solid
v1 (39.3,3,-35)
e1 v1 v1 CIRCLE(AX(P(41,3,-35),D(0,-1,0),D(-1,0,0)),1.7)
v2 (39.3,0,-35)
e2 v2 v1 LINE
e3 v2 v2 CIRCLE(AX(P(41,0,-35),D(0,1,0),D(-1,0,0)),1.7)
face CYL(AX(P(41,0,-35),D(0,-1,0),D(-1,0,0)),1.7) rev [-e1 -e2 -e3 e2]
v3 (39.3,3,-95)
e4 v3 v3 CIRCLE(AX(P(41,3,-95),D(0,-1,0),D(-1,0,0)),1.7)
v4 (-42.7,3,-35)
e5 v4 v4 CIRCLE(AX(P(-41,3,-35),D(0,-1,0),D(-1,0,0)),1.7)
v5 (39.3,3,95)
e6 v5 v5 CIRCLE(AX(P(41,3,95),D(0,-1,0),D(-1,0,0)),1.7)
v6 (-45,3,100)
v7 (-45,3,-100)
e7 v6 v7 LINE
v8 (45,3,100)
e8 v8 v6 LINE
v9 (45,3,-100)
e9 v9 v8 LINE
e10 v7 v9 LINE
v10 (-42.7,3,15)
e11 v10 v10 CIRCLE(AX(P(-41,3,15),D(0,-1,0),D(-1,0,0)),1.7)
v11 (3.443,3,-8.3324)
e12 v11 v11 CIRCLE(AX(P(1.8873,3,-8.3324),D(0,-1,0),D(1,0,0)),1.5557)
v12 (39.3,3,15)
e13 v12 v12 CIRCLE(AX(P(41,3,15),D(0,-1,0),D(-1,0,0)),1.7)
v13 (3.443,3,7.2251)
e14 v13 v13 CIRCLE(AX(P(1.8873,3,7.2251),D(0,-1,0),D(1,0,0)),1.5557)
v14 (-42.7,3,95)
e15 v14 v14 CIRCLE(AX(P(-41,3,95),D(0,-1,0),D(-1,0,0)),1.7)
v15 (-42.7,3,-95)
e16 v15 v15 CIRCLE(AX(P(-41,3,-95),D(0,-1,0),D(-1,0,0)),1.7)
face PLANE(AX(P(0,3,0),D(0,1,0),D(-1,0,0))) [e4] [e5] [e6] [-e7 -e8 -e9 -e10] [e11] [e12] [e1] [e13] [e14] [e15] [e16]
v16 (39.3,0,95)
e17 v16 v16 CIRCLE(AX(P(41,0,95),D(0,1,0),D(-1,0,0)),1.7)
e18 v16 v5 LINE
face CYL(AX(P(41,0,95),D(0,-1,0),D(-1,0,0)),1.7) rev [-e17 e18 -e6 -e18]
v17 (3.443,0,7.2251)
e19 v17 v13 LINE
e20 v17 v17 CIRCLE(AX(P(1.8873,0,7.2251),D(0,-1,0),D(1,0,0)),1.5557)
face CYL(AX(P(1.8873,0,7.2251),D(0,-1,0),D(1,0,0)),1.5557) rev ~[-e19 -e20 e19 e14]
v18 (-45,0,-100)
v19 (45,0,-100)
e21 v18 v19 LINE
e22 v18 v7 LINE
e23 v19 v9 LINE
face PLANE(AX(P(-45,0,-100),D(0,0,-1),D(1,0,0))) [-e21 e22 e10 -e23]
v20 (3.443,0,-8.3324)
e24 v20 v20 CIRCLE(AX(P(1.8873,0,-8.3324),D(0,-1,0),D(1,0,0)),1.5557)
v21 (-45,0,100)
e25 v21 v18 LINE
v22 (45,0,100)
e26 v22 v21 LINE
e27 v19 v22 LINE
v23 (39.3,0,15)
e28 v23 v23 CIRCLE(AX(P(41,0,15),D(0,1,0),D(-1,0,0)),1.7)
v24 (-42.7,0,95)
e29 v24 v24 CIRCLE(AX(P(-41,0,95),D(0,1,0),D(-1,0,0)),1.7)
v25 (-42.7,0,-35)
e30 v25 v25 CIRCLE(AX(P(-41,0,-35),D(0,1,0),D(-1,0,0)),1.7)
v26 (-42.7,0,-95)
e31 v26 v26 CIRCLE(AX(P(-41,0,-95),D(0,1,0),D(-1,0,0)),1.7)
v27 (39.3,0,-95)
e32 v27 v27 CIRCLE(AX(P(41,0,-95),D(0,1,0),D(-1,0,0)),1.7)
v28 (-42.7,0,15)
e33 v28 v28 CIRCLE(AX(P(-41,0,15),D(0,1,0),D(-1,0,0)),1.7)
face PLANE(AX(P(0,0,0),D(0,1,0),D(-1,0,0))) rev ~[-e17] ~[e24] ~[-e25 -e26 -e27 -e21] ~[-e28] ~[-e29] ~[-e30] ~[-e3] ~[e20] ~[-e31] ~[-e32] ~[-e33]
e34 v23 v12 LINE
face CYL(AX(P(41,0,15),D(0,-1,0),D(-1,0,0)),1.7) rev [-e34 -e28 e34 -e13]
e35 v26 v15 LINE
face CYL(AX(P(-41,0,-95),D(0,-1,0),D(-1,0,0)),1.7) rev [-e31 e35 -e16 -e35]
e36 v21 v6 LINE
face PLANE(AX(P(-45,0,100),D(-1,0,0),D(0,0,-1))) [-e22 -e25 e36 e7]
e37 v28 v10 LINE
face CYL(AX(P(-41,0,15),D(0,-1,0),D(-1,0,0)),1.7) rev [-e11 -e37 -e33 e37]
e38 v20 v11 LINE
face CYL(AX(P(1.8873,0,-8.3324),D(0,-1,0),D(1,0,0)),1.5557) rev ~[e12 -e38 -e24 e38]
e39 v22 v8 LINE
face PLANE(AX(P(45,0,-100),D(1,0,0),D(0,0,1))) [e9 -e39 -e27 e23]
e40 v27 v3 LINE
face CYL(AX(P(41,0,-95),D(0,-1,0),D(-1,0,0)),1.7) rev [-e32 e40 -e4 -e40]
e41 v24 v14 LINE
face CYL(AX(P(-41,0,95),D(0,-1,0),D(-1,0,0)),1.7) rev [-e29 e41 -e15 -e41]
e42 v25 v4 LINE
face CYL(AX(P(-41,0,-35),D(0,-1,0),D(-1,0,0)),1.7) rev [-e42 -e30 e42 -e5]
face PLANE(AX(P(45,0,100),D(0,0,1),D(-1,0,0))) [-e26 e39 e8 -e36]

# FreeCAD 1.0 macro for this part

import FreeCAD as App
import Part
import Sketcher
Q = App.Units.Quantity


def add_polygon(sketch, points):
    """Adds a closed chain of lines whose ends are joined by coincident constraints."""
    first, n = sketch.GeometryCount, len(points)
    for a, b in zip(points, points[1:] + points[:1]):
        sketch.addGeometry(Part.LineSegment(App.Vector(*a, 0), App.Vector(*b, 0)), False)
    for i in range(n):
        sketch.addConstraint(Sketcher.Constraint("Coincident", first + i, 2, first + (i + 1) % n, 1))

doc = App.newDocument("Part")
params = doc.addObject("Spreadsheet::Sheet", "Params")
for row, (alias, value) in enumerate([
    ("pad1_length", "3 mm"),
    ("sketch2_diameter", "3.4 mm"),
    ("pocket1_length", "10 mm"),
    ("pocket2_length", "10 mm"),
], start=1):
    params.set(f"A{row}", alias)
    params.set(f"B{row}", "=" + value)
    params.setAlias(f"B{row}", alias)

body = doc.addObject("PartDesign::Body", "Body")

sketch1 = body.newObject("Sketcher::SketchObject", "Sketch")
sketch1.AttachmentSupport = (doc.getObject("XZ_Plane"), [""])
sketch1.MapMode = "FlatFace"
add_polygon(sketch1, [(-45, -100), (-45, 100), (45, 100), (45, -100)])
sketch1.addConstraint(Sketcher.Constraint("Vertical", 0))
sketch1.addConstraint(Sketcher.Constraint("Horizontal", 1))
sketch1.addConstraint(Sketcher.Constraint("Vertical", 2))
sketch1.addConstraint(Sketcher.Constraint("Horizontal", 3))
sketch1.addConstraint(Sketcher.Constraint("Symmetric", 0, 2, 2, 2, -1, 1))
sketch1.addConstraint(Sketcher.Constraint("DistanceX", 0, 2, -1, 1, Q("45 mm")))
sketch1.addConstraint(Sketcher.Constraint("DistanceY", -1, 1, 0, 2, Q("100 mm")))
pad1 = body.newObject("PartDesign::Pad", "Pad")
pad1.Profile = sketch1
pad1.setExpression("Length", "Params.pad1_length")
pad1.Reversed = True

sketch2 = body.newObject("Sketcher::SketchObject", "Sketch001")
sketch2.AttachmentSupport = (doc.getObject("XZ_Plane"), [""])
sketch2.MapMode = "FlatFace"
sketch2.addGeometry(Part.Circle(App.Vector(-41, 95, 0), App.Vector(0, 0, 1), 1.7), False)
sketch2.addGeometry(Part.Circle(App.Vector(41, 95, 0), App.Vector(0, 0, 1), 1.7), False)
sketch2.addGeometry(Part.Circle(App.Vector(41, -95, 0), App.Vector(0, 0, 1), 1.7), False)
sketch2.addGeometry(Part.Circle(App.Vector(-41, -95, 0), App.Vector(0, 0, 1), 1.7), False)
sketch2.addGeometry(Part.Circle(App.Vector(41, 15, 0), App.Vector(0, 0, 1), 1.7), False)
sketch2.addGeometry(Part.Circle(App.Vector(-41, 15, 0), App.Vector(0, 0, 1), 1.7), False)
sketch2.addGeometry(Part.Circle(App.Vector(41, -35, 0), App.Vector(0, 0, 1), 1.7), False)
sketch2.addGeometry(Part.Circle(App.Vector(-41, -35, 0), App.Vector(0, 0, 1), 1.7), False)
sketch2.addConstraint(Sketcher.Constraint("Equal", 0, 1))
sketch2.addConstraint(Sketcher.Constraint("Equal", 1, 2))
sketch2.addConstraint(Sketcher.Constraint("Equal", 2, 3))
sketch2.addConstraint(Sketcher.Constraint("Equal", 3, 4))
sketch2.addConstraint(Sketcher.Constraint("Equal", 4, 5))
sketch2.addConstraint(Sketcher.Constraint("Equal", 5, 6))
sketch2.addConstraint(Sketcher.Constraint("Equal", 6, 7))
sketch2.addConstraint(Sketcher.Constraint("Symmetric", 0, 3, 2, 3, -1, 1))
sketch2.addConstraint(Sketcher.Constraint("Symmetric", 1, 3, 3, 3, -1, 1))
sketch2.addConstraint(Sketcher.Constraint("Symmetric", 0, 3, 1, 3, -2))
sketch2.addConstraint(Sketcher.Constraint("Symmetric", 4, 3, 5, 3, -2))
sketch2.addConstraint(Sketcher.Constraint("Symmetric", 6, 3, 7, 3, -2))
sketch2.addConstraint(Sketcher.Constraint("Vertical", 2, 3, 4, 3))
sketch2.addConstraint(Sketcher.Constraint("Vertical", 4, 3, 6, 3))
sketch2.addConstraint(Sketcher.Constraint("Diameter", 0, Q("3.4 mm")))
sketch2.addConstraint(Sketcher.Constraint("DistanceY", 4, 3, 1, 3, Q("80 mm")))
sketch2.addConstraint(Sketcher.Constraint("DistanceY", 6, 3, 4, 3, Q("50 mm")))
sketch2.addConstraint(Sketcher.Constraint("DistanceX", 0, 3, -1, 1, Q("41 mm")))
sketch2.addConstraint(Sketcher.Constraint("DistanceY", -1, 1, 0, 3, Q("95 mm")))
sketch2.setExpression("Constraints[14]", "Params.sketch2_diameter")
pocket1 = body.newObject("PartDesign::Pocket", "Pocket")
pocket1.Profile = sketch2
pocket1.setExpression("Length", "Params.pocket1_length")

sketch3 = body.newObject("Sketcher::SketchObject", "Sketch002")
sketch3.AttachmentSupport = (doc.getObject("XZ_Plane"), [""])
sketch3.MapMode = "FlatFace"
sketch3.addGeometry(Part.Circle(App.Vector(1.8873, 7.2251, 0), App.Vector(0, 0, 1), 1.5557), False)
sketch3.addGeometry(Part.Circle(App.Vector(1.8873, -8.3324, 0), App.Vector(0, 0, 1), 1.5557), False)
sketch3.addConstraint(Sketcher.Constraint("Equal", 0, 1))
sketch3.addConstraint(Sketcher.Constraint("Vertical", 0, 3, 1, 3))
sketch3.addConstraint(Sketcher.Constraint("Diameter", 0, Q("3.1114 mm")))
sketch3.addConstraint(Sketcher.Constraint("DistanceY", -1, 1, 0, 3, Q("7.225 mm")))
sketch3.addConstraint(Sketcher.Constraint("DistanceX", -1, 1, 0, 3, Q("1.8873 mm")))
sketch3.addConstraint(Sketcher.Constraint("DistanceY", 1, 3, -1, 1, Q("8.3324 mm")))
pocket2 = body.newObject("PartDesign::Pocket", "Pocket001")
pocket2.Profile = sketch3
pocket2.setExpression("Length", "Params.pocket2_length")

doc.recompute()
